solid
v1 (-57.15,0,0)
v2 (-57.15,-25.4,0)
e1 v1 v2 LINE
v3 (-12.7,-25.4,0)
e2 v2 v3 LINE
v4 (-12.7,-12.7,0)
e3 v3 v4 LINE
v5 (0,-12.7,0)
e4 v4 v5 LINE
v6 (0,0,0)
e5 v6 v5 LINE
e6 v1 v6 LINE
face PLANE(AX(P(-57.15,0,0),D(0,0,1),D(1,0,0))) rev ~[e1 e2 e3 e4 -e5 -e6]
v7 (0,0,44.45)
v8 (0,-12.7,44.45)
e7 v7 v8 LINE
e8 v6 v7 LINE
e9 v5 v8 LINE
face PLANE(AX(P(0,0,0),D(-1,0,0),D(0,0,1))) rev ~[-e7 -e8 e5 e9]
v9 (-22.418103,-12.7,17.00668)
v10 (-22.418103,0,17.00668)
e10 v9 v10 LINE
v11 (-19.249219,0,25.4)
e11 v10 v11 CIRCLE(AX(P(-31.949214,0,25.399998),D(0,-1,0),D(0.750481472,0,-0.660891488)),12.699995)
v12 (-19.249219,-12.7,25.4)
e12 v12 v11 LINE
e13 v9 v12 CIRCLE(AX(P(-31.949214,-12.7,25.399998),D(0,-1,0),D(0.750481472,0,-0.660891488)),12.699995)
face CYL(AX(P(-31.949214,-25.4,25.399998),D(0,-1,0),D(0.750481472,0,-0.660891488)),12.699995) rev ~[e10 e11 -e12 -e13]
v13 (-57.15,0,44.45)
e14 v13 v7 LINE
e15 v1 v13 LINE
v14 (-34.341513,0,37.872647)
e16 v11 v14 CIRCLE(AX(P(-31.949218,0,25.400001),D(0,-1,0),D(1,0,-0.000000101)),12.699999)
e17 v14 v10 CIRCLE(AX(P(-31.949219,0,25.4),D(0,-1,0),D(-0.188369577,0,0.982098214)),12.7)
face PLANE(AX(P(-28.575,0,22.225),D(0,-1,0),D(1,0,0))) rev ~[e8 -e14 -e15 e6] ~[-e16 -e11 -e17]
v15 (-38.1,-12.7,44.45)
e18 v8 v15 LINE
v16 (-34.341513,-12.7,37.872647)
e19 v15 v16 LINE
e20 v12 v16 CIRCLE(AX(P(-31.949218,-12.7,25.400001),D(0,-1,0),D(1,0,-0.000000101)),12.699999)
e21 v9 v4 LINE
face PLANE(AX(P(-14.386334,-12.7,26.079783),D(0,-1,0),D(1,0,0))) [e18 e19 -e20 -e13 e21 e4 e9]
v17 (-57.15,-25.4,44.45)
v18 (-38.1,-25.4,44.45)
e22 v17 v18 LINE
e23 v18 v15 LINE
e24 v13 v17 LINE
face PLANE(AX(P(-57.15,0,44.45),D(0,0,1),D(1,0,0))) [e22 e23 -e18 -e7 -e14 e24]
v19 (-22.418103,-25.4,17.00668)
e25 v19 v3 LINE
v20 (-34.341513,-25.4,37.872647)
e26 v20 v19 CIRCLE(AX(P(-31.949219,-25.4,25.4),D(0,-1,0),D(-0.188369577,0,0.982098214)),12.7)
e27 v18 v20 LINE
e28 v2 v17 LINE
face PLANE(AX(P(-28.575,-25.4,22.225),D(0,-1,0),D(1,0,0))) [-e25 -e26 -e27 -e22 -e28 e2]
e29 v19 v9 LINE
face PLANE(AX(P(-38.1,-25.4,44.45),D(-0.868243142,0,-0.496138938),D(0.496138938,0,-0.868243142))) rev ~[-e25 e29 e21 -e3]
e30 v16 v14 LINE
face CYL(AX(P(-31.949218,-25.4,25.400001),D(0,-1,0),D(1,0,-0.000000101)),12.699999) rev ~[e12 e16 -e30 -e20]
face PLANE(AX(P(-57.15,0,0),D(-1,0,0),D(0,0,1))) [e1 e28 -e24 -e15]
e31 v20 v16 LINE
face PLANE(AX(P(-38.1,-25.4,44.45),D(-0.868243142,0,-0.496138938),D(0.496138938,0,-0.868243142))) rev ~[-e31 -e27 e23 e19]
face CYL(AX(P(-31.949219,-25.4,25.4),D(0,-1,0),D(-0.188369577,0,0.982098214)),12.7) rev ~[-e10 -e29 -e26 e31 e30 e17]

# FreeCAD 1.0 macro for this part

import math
import FreeCAD as App
import Part
import Sketcher
Q = App.Units.Quantity

doc = App.newDocument("Part")
body = doc.addObject("PartDesign::Body", "Body")

# Sketch on XZ plane
sketch1 = doc.addObject("Sketcher::SketchObject", "Sketch")
body.addObject(sketch1)
sketch1.AttachmentSupport = (doc.XZ_Plane, [""])
sketch1.MapMode = "FlatFace"
sketch1.addGeometry(Part.LineSegment(App.Vector(-57, 44, 0), App.Vector(-57, 0, 0)), False)
sketch1.addGeometry(Part.LineSegment(App.Vector(-57, 0, 0), App.Vector(0, 0, 0)), False)
sketch1.addGeometry(Part.LineSegment(App.Vector(0, 0, 0), App.Vector(0, 44, 0)), False)
sketch1.addGeometry(Part.LineSegment(App.Vector(0, 44, 0), App.Vector(-57, 44, 0)), False)
sketch1.addConstraint(Sketcher.Constraint("Coincident", 0, 2, 1, 1))
sketch1.addConstraint(Sketcher.Constraint("Coincident", 1, 2, 2, 1))
sketch1.addConstraint(Sketcher.Constraint("Coincident", 2, 2, 3, 1))
sketch1.addConstraint(Sketcher.Constraint("Coincident", 3, 2, 0, 1))
sketch1.addConstraint(Sketcher.Constraint("Vertical", 0))
sketch1.addConstraint(Sketcher.Constraint("Horizontal", 1))
sketch1.addConstraint(Sketcher.Constraint("Vertical", 2))
sketch1.addConstraint(Sketcher.Constraint("Horizontal", 3))
sketch1.addConstraint(Sketcher.Constraint("Coincident", 1, 2, -1, 1))
sketch1.addConstraint(Sketcher.Constraint("DistanceX", 1, 1, 1, 2, Q("2.25 in")))
sketch1.addConstraint(Sketcher.Constraint("DistanceY", 0, 2, 0, 1, Q("1.75 in")))
pad1 = doc.addObject("PartDesign::Pad", "Pad")
body.addObject(pad1)
pad1.Profile = sketch1
pad1.Length = Q("1 in")

# Sketch on XZ plane
sketch2 = doc.addObject("Sketcher::SketchObject", "Sketch001")
body.addObject(sketch2)
sketch2.AttachmentSupport = (doc.XZ_Plane, [""])
sketch2.MapMode = "FlatFace"
sketch2.AttachmentOffset = App.Placement(App.Vector(0, 0, 1 * 25.4), App.Rotation())
sketch2.addGeometry(Part.LineSegment(App.Vector(0, 44, 0), App.Vector(-38, 44, 0)), False)
sketch2.addGeometry(Part.LineSegment(App.Vector(-38, 44, 0), App.Vector(-13, 0, 0)), False)
sketch2.addGeometry(Part.LineSegment(App.Vector(-13, 0, 0), App.Vector(0, 0, 0)), False)
sketch2.addGeometry(Part.LineSegment(App.Vector(0, 0, 0), App.Vector(0, 44, 0)), False)
sketch2.addConstraint(Sketcher.Constraint("Coincident", 0, 2, 1, 1))
sketch2.addConstraint(Sketcher.Constraint("Coincident", 1, 2, 2, 1))
sketch2.addConstraint(Sketcher.Constraint("Coincident", 2, 2, 3, 1))
sketch2.addConstraint(Sketcher.Constraint("Coincident", 3, 2, 0, 1))
sketch2.addConstraint(Sketcher.Constraint("Horizontal", 0))
sketch2.addConstraint(Sketcher.Constraint("Horizontal", 2))
sketch2.addConstraint(Sketcher.Constraint("Vertical", 3))
sketch2.addConstraint(Sketcher.Constraint("Coincident", 2, 2, -1, 1))
sketch2.addConstraint(Sketcher.Constraint("DistanceX", 0, 2, 0, 1, Q("1.5 in")))
sketch2.addConstraint(Sketcher.Constraint("DistanceX", 2, 1, 2, 2, Q("0.5 in")))
sketch2.addConstraint(Sketcher.Constraint("DistanceY", 3, 1, 3, 2, Q("1.75 in")))
pocket1 = doc.addObject("PartDesign::Pocket", "Pocket")
body.addObject(pocket1)
pocket1.Profile = sketch2
pocket1.Length = Q("0.5 in")

# Sketch on XZ plane
sketch3 = doc.addObject("Sketcher::SketchObject", "Sketch002")
body.addObject(sketch3)
sketch3.AttachmentSupport = (doc.XZ_Plane, [""])
sketch3.MapMode = "FlatFace"
sketch3.AttachmentOffset = App.Placement(App.Vector(0, 0, 1 * 25.4), App.Rotation())
sketch3.addGeometry(Part.ArcOfCircle(Part.Circle(App.Vector(-32, 25, 0), App.Vector(0, 0, 1), 13), math.radians(-41), math.radians(0)), False)
sketch3.addGeometry(Part.ArcOfCircle(Part.Circle(App.Vector(-32, 25, 0), App.Vector(0, 0, 1), 13), math.radians(0), math.radians(101)), False)
sketch3.addGeometry(Part.ArcOfCircle(Part.Circle(App.Vector(-32, 25, 0), App.Vector(0, 0, 1), 13), math.radians(101), math.radians(319)), False)
sketch3.addConstraint(Sketcher.Constraint("Tangent", 0, 2, 1, 1))
sketch3.addConstraint(Sketcher.Constraint("Tangent", 1, 2, 2, 1))
sketch3.addConstraint(Sketcher.Constraint("Tangent", 2, 2, 0, 1))
sketch3.addConstraint(Sketcher.Constraint("Horizontal", 2, 3, 0, 2))
sketch3.addConstraint(Sketcher.Constraint("Radius", 1, Q("0.5 in")))
sketch3.addConstraint(Sketcher.Constraint("DistanceY", -1, 1, 0, 3, Q("0.9999999 in")))
sketch3.addConstraint(Sketcher.Constraint("DistanceX", 1, 2, 0, 3, 2.392299))
sketch3.addConstraint(Sketcher.Constraint("DistanceX", 2, 3, -1, 1, 31.949219))
sketch3.addConstraint(Sketcher.Constraint("DistanceY", -1, 1, 2, 2, 17.00668))
pocket2 = doc.addObject("PartDesign::Pocket", "Pocket001")
body.addObject(pocket2)
pocket2.Profile = sketch3
pocket2.Length = Q("1 in")

doc.recompute()
